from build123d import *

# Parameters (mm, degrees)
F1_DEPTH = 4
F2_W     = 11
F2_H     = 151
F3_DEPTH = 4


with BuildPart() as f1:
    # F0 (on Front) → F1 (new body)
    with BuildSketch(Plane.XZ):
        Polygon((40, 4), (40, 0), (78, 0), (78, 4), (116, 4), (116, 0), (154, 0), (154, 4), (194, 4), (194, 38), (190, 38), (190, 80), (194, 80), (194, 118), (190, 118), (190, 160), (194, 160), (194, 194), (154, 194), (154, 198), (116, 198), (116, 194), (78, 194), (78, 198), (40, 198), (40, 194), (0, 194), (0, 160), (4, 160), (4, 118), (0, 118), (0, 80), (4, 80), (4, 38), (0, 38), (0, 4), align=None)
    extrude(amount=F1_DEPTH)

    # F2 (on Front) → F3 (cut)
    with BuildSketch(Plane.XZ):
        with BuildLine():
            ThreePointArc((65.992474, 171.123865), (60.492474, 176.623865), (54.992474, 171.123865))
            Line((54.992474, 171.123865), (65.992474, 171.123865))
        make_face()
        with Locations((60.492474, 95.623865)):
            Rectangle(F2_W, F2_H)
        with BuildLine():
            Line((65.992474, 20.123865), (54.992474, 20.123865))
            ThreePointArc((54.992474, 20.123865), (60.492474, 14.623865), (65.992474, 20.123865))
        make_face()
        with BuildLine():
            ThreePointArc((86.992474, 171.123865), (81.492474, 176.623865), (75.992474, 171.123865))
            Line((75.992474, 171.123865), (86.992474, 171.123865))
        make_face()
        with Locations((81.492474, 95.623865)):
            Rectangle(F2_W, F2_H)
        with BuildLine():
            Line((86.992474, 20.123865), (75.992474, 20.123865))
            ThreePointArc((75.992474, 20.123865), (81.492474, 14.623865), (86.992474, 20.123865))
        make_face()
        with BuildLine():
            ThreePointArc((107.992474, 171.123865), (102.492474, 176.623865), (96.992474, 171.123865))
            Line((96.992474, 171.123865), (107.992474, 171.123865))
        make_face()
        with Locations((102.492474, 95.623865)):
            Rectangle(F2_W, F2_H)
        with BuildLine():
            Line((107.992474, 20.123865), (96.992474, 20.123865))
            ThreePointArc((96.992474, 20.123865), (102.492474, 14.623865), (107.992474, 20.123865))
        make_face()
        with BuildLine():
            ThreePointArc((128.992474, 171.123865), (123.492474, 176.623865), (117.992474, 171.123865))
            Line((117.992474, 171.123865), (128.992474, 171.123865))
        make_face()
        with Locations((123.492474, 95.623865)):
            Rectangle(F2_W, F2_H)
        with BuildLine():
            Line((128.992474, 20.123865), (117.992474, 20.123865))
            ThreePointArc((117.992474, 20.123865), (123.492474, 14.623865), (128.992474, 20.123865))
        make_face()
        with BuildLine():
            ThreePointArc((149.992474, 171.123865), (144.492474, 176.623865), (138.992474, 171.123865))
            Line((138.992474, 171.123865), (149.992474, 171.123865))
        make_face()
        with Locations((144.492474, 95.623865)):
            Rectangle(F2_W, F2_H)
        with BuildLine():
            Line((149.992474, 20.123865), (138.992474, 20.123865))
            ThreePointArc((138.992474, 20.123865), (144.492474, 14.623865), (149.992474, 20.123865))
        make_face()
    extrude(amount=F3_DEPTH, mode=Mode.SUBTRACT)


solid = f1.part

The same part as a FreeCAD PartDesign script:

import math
import FreeCAD as App
import Part
import Sketcher
from FreeCAD import Vector
Q = App.Units.Quantity

doc = App.newDocument("Part")
body = doc.addObject("PartDesign::Body", "Body")

# Sketch on XZ plane
sketch1 = body.newObject("Sketcher::SketchObject", "Sketch")
sketch1.AttachmentSupport = (doc.getObject("XZ_Plane"), [""])
sketch1.MapMode = "FlatFace"
sketch1.addGeometry([
    Part.LineSegment(Vector(40, 4, 0), Vector(40, 0, 0)),  # 0
    Part.LineSegment(Vector(40, 0, 0), Vector(78, 0, 0)),  # 1
    Part.LineSegment(Vector(78, 0, 0), Vector(78, 4, 0)),  # 2
    Part.LineSegment(Vector(78, 4, 0), Vector(116, 4, 0)),  # 3
    Part.LineSegment(Vector(116, 4, 0), Vector(116, 0, 0)),  # 4
    Part.LineSegment(Vector(116, 0, 0), Vector(154, 0, 0)),  # 5
    Part.LineSegment(Vector(154, 0, 0), Vector(154, 4, 0)),  # 6
    Part.LineSegment(Vector(154, 4, 0), Vector(194, 4, 0)),  # 7
    Part.LineSegment(Vector(194, 4, 0), Vector(194, 38, 0)),  # 8
    Part.LineSegment(Vector(194, 38, 0), Vector(190, 38, 0)),  # 9
    Part.LineSegment(Vector(190, 38, 0), Vector(190, 80, 0)),  # 10
    Part.LineSegment(Vector(190, 80, 0), Vector(194, 80, 0)),  # 11
    Part.LineSegment(Vector(194, 80, 0), Vector(194, 118, 0)),  # 12
    Part.LineSegment(Vector(194, 118, 0), Vector(190, 118, 0)),  # 13
    Part.LineSegment(Vector(190, 118, 0), Vector(190, 160, 0)),  # 14
    Part.LineSegment(Vector(190, 160, 0), Vector(194, 160, 0)),  # 15
    Part.LineSegment(Vector(194, 160, 0), Vector(194, 194, 0)),  # 16
    Part.LineSegment(Vector(194, 194, 0), Vector(154, 194, 0)),  # 17
    Part.LineSegment(Vector(154, 194, 0), Vector(154, 198, 0)),  # 18
    Part.LineSegment(Vector(154, 198, 0), Vector(116, 198, 0)),  # 19
    Part.LineSegment(Vector(116, 198, 0), Vector(116, 194, 0)),  # 20
    Part.LineSegment(Vector(116, 194, 0), Vector(78, 194, 0)),  # 21
    Part.LineSegment(Vector(78, 194, 0), Vector(78, 198, 0)),  # 22
    Part.LineSegment(Vector(78, 198, 0), Vector(40, 198, 0)),  # 23
    Part.LineSegment(Vector(40, 198, 0), Vector(40, 194, 0)),  # 24
    Part.LineSegment(Vector(40, 194, 0), Vector(0, 194, 0)),  # 25
    Part.LineSegment(Vector(0, 194, 0), Vector(0, 160, 0)),  # 26
    Part.LineSegment(Vector(0, 160, 0), Vector(4, 160, 0)),  # 27
    Part.LineSegment(Vector(4, 160, 0), Vector(4, 118, 0)),  # 28
    Part.LineSegment(Vector(4, 118, 0), Vector(0, 118, 0)),  # 29
    Part.LineSegment(Vector(0, 118, 0), Vector(0, 80, 0)),  # 30
    Part.LineSegment(Vector(0, 80, 0), Vector(4, 80, 0)),  # 31
    Part.LineSegment(Vector(4, 80, 0), Vector(4, 38, 0)),  # 32
    Part.LineSegment(Vector(4, 38, 0), Vector(0, 38, 0)),  # 33
    Part.LineSegment(Vector(0, 38, 0), Vector(0, 4, 0)),  # 34
    Part.LineSegment(Vector(0, 4, 0), Vector(40, 4, 0)),  # 35
], False)
sketch1.addConstraint([
    Sketcher.Constraint("Coincident", 0, 2, 1, 1),
    Sketcher.Constraint("Coincident", 1, 2, 2, 1),
    Sketcher.Constraint("Coincident", 2, 2, 3, 1),
    Sketcher.Constraint("Coincident", 3, 2, 4, 1),
    Sketcher.Constraint("Coincident", 4, 2, 5, 1),
    Sketcher.Constraint("Coincident", 5, 2, 6, 1),
    Sketcher.Constraint("Coincident", 6, 2, 7, 1),
    Sketcher.Constraint("Coincident", 7, 2, 8, 1),
    Sketcher.Constraint("Coincident", 8, 2, 9, 1),
    Sketcher.Constraint("Coincident", 9, 2, 10, 1),
    Sketcher.Constraint("Coincident", 10, 2, 11, 1),
    Sketcher.Constraint("Coincident", 11, 2, 12, 1),
    Sketcher.Constraint("Coincident", 12, 2, 13, 1),
    Sketcher.Constraint("Coincident", 13, 2, 14, 1),
    Sketcher.Constraint("Coincident", 14, 2, 15, 1),
    Sketcher.Constraint("Coincident", 15, 2, 16, 1),
    Sketcher.Constraint("Coincident", 16, 2, 17, 1),
    Sketcher.Constraint("Coincident", 17, 2, 18, 1),
    Sketcher.Constraint("Coincident", 18, 2, 19, 1),
    Sketcher.Constraint("Coincident", 19, 2, 20, 1),
    Sketcher.Constraint("Coincident", 20, 2, 21, 1),
    Sketcher.Constraint("Coincident", 21, 2, 22, 1),
    Sketcher.Constraint("Coincident", 22, 2, 23, 1),
    Sketcher.Constraint("Coincident", 23, 2, 24, 1),
    Sketcher.Constraint("Coincident", 24, 2, 25, 1),
    Sketcher.Constraint("Coincident", 25, 2, 26, 1),
    Sketcher.Constraint("Coincident", 26, 2, 27, 1),
    Sketcher.Constraint("Coincident", 27, 2, 28, 1),
    Sketcher.Constraint("Coincident", 28, 2, 29, 1),
    Sketcher.Constraint("Coincident", 29, 2, 30, 1),
    Sketcher.Constraint("Coincident", 30, 2, 31, 1),
    Sketcher.Constraint("Coincident", 31, 2, 32, 1),
    Sketcher.Constraint("Coincident", 32, 2, 33, 1),
    Sketcher.Constraint("Coincident", 33, 2, 34, 1),
    Sketcher.Constraint("Coincident", 34, 2, 35, 1),
    Sketcher.Constraint("Coincident", 35, 2, 0, 1),
    Sketcher.Constraint("Vertical", 0),
    Sketcher.Constraint("Horizontal", 1),
    Sketcher.Constraint("Vertical", 2),
    Sketcher.Constraint("Horizontal", 3),
    Sketcher.Constraint("Vertical", 4),
    Sketcher.Constraint("Horizontal", 5),
    Sketcher.Constraint("Vertical", 6),
    Sketcher.Constraint("Horizontal", 7),
    Sketcher.Constraint("Vertical", 8),
    Sketcher.Constraint("Horizontal", 9),
    Sketcher.Constraint("Vertical", 10),
    Sketcher.Constraint("Horizontal", 11),
    Sketcher.Constraint("Vertical", 12),
    Sketcher.Constraint("Horizontal", 13),
    Sketcher.Constraint("Vertical", 14),
    Sketcher.Constraint("Horizontal", 15),
    Sketcher.Constraint("Vertical", 16),
    Sketcher.Constraint("Horizontal", 17),
    Sketcher.Constraint("Vertical", 18),
    Sketcher.Constraint("Horizontal", 19),
    Sketcher.Constraint("Vertical", 20),
    Sketcher.Constraint("Horizontal", 21),
    Sketcher.Constraint("Vertical", 22),
    Sketcher.Constraint("Horizontal", 23),
    Sketcher.Constraint("Vertical", 24),
    Sketcher.Constraint("Horizontal", 25),
    Sketcher.Constraint("Vertical", 26),
    Sketcher.Constraint("Horizontal", 27),
    Sketcher.Constraint("Vertical", 28),
    Sketcher.Constraint("Horizontal", 29),
    Sketcher.Constraint("Vertical", 30),
    Sketcher.Constraint("Horizontal", 31),
    Sketcher.Constraint("Vertical", 32),
    Sketcher.Constraint("Horizontal", 33),
    Sketcher.Constraint("Vertical", 34),
    Sketcher.Constraint("Horizontal", 35),
    Sketcher.Constraint("PointOnObject", 0, 2, -1),
    Sketcher.Constraint("PointOnObject", 4, 2, -1),
    Sketcher.Constraint("PointOnObject", 25, 2, -2),
    Sketcher.Constraint("PointOnObject", 29, 2, -2),
    Sketcher.Constraint("PointOnObject", 33, 2, -2),
    Sketcher.Constraint("Horizontal", 3, 2, 6, 2),
    Sketcher.Constraint("Horizontal", 17, 2, 20, 2),
    Sketcher.Constraint("Horizontal", 19, 2, 22, 2),
    Sketcher.Constraint("Horizontal", 21, 2, 24, 2),
    Sketcher.Constraint("Horizontal", 15, 2, 26, 2),
    Sketcher.Constraint("Horizontal", 13, 2, 28, 2),
    Sketcher.Constraint("Horizontal", 11, 2, 30, 2),
    Sketcher.Constraint("Horizontal", 9, 2, 32, 2),
    Sketcher.Constraint("Horizontal", 7, 2, 34, 2),
    Sketcher.Constraint("Vertical", 8, 2, 11, 2),
    Sketcher.Constraint("Vertical", 10, 2, 13, 2),
    Sketcher.Constraint("Vertical", 12, 2, 15, 2),
    Sketcher.Constraint("Vertical", 6, 2, 17, 2),
    Sketcher.Constraint("Vertical", 4, 2, 19, 2),
    Sketcher.Constraint("Vertical", 2, 2, 21, 2),
    Sketcher.Constraint("Vertical", 0, 2, 23, 2),
    Sketcher.Constraint("Vertical", 28, 2, 31, 2),
    Sketcher.Constraint("Equal", 1, 3),
    Sketcher.Constraint("Equal", 3, 5),
    Sketcher.Constraint("Equal", 17, 25),
    Sketcher.Constraint("Equal", 15, 27),
    Sketcher.Constraint("Equal", 33, 0),
    Sketcher.Constraint("Equal", 23, 12),
    Sketcher.Constraint("Equal", 10, 14),
    Sketcher.Constraint("Equal", 8, 16),
    Sketcher.Constraint("Equal", 6, 18),
    Sketcher.Constraint("DistanceX", 1, 1, 1, 2, Q("38 mm")),
    Sketcher.Constraint("DistanceX", 7, 1, 7, 2, Q("40 mm")),
    Sketcher.Constraint("DistanceX", 9, 2, 9, 1, Q("4 mm")),
    Sketcher.Constraint("DistanceY", 8, 1, 8, 2, Q("34 mm")),
    Sketcher.Constraint("DistanceY", 10, 1, 10, 2, Q("42 mm")),
])
pad1 = body.newObject("PartDesign::Pad", "Pad")
pad1.Profile = sketch1
pad1.Length = 4

# Sketch on XZ plane
sketch2 = body.newObject("Sketcher::SketchObject", "Sketch001")
sketch2.AttachmentSupport = (doc.getObject("XZ_Plane"), [""])
sketch2.MapMode = "FlatFace"
sketch2.addGeometry([
    Part.ArcOfCircle(Part.Circle(Vector(60, 171, 0), Vector(0, 0, 1), 6), math.radians(0), math.radians(180)),  # 0
    Part.LineSegment(Vector(55, 171, 0), Vector(55, 20, 0)),  # 1
    Part.ArcOfCircle(Part.Circle(Vector(60, 20, 0), Vector(0, 0, 1), 6), math.radians(180), math.radians(360)),  # 2
    Part.LineSegment(Vector(66, 20, 0), Vector(66, 171, 0)),  # 3
    Part.ArcOfCircle(Part.Circle(Vector(81, 171, 0), Vector(0, 0, 1), 6), math.radians(0), math.radians(180)),  # 4
    Part.LineSegment(Vector(76, 171, 0), Vector(76, 20, 0)),  # 5
    Part.ArcOfCircle(Part.Circle(Vector(81, 20, 0), Vector(0, 0, 1), 6), math.radians(180), math.radians(360)),  # 6
    Part.LineSegment(Vector(87, 20, 0), Vector(87, 171, 0)),  # 7
    Part.ArcOfCircle(Part.Circle(Vector(102, 171, 0), Vector(0, 0, 1), 6), math.radians(0), math.radians(180)),  # 8
    Part.LineSegment(Vector(97, 171, 0), Vector(97, 20, 0)),  # 9
    Part.ArcOfCircle(Part.Circle(Vector(102, 20, 0), Vector(0, 0, 1), 6), math.radians(180), math.radians(360)),  # 10
    Part.LineSegment(Vector(108, 20, 0), Vector(108, 171, 0)),  # 11
    Part.ArcOfCircle(Part.Circle(Vector(123, 171, 0), Vector(0, 0, 1), 6), math.radians(0), math.radians(180)),  # 12
    Part.LineSegment(Vector(118, 171, 0), Vector(118, 20, 0)),  # 13
    Part.ArcOfCircle(Part.Circle(Vector(123, 20, 0), Vector(0, 0, 1), 6), math.radians(180), math.radians(360)),  # 14
    Part.LineSegment(Vector(129, 20, 0), Vector(129, 171, 0)),  # 15
    Part.ArcOfCircle(Part.Circle(Vector(144, 171, 0), Vector(0, 0, 1), 6), math.radians(0), math.radians(180)),  # 16
    Part.LineSegment(Vector(139, 171, 0), Vector(139, 20, 0)),  # 17
    Part.ArcOfCircle(Part.Circle(Vector(144, 20, 0), Vector(0, 0, 1), 6), math.radians(180), math.radians(360)),  # 18
    Part.LineSegment(Vector(150, 20, 0), Vector(150, 171, 0)),  # 19
], False)
sketch2.addConstraint([
    Sketcher.Constraint("Tangent", 0, 2, 1, 1),
    Sketcher.Constraint("Tangent", 1, 2, 2, 1),
    Sketcher.Constraint("Tangent", 2, 2, 3, 1),
    Sketcher.Constraint("Tangent", 3, 2, 0, 1),
    Sketcher.Constraint("Tangent", 4, 2, 5, 1),
    Sketcher.Constraint("Tangent", 5, 2, 6, 1),
    Sketcher.Constraint("Tangent", 6, 2, 7, 1),
    Sketcher.Constraint("Tangent", 7, 2, 4, 1),
    Sketcher.Constraint("Tangent", 8, 2, 9, 1),
    Sketcher.Constraint("Tangent", 9, 2, 10, 1),
    Sketcher.Constraint("Tangent", 10, 2, 11, 1),
    Sketcher.Constraint("Tangent", 11, 2, 8, 1),
    Sketcher.Constraint("Tangent", 12, 2, 13, 1),
    Sketcher.Constraint("Tangent", 13, 2, 14, 1),
    Sketcher.Constraint("Tangent", 14, 2, 15, 1),
    Sketcher.Constraint("Tangent", 15, 2, 12, 1),
    Sketcher.Constraint("Tangent", 16, 2, 17, 1),
    Sketcher.Constraint("Tangent", 17, 2, 18, 1),
    Sketcher.Constraint("Tangent", 18, 2, 19, 1),
    Sketcher.Constraint("Tangent", 19, 2, 16, 1),
    Sketcher.Constraint("Vertical", 1),
    Sketcher.Constraint("Vertical", 3),
    Sketcher.Constraint("Vertical", 5),
    Sketcher.Constraint("Vertical", 7),
    Sketcher.Constraint("Vertical", 9),
    Sketcher.Constraint("Vertical", 11),
    Sketcher.Constraint("Vertical", 13),
    Sketcher.Constraint("Vertical", 15),
    Sketcher.Constraint("Vertical", 17),
    Sketcher.Constraint("Vertical", 19),
    Sketcher.Constraint("Equal", 2, 4),
    Sketcher.Constraint("Equal", 6, 8),
    Sketcher.Constraint("Equal", 10, 12),
    Sketcher.Constraint("Equal", 14, 16),
    Sketcher.Constraint("Horizontal", 0, 3, 4, 3),
    Sketcher.Constraint("Horizontal", 2, 3, 6, 3),
    Sketcher.Constraint("Horizontal", 4, 3, 8, 3),
    Sketcher.Constraint("Horizontal", 6, 3, 10, 3),
    Sketcher.Constraint("Horizontal", 8, 3, 12, 3),
    Sketcher.Constraint("Horizontal", 10, 3, 14, 3),
    Sketcher.Constraint("Horizontal", 12, 3, 16, 3),
    Sketcher.Constraint("Horizontal", 14, 3, 18, 3),
    Sketcher.Constraint("Radius", 0, Q("5.5 mm")),
    Sketcher.Constraint("DistanceY", 1, 2, 1, 1, Q("151 mm")),
    Sketcher.Constraint("DistanceX", 0, 3, 4, 3, Q("21 mm")),
    Sketcher.Constraint("DistanceX", 4, 3, 8, 3, Q("21 mm")),
    Sketcher.Constraint("DistanceX", 8, 3, 12, 3, Q("21 mm")),
    Sketcher.Constraint("DistanceX", 12, 3, 16, 3, Q("21 mm")),
    Sketcher.Constraint("DistanceX", -1, 1, 0, 3, Q("60.492474 mm")),
    Sketcher.Constraint("DistanceY", -1, 1, 0, 3, Q("171.123865 mm")),
])
pocket1 = body.newObject("PartDesign::Pocket", "Pocket")
pocket1.Profile = sketch2
pocket1.Length = 4
pocket1.Reversed = True

doc.recompute()
